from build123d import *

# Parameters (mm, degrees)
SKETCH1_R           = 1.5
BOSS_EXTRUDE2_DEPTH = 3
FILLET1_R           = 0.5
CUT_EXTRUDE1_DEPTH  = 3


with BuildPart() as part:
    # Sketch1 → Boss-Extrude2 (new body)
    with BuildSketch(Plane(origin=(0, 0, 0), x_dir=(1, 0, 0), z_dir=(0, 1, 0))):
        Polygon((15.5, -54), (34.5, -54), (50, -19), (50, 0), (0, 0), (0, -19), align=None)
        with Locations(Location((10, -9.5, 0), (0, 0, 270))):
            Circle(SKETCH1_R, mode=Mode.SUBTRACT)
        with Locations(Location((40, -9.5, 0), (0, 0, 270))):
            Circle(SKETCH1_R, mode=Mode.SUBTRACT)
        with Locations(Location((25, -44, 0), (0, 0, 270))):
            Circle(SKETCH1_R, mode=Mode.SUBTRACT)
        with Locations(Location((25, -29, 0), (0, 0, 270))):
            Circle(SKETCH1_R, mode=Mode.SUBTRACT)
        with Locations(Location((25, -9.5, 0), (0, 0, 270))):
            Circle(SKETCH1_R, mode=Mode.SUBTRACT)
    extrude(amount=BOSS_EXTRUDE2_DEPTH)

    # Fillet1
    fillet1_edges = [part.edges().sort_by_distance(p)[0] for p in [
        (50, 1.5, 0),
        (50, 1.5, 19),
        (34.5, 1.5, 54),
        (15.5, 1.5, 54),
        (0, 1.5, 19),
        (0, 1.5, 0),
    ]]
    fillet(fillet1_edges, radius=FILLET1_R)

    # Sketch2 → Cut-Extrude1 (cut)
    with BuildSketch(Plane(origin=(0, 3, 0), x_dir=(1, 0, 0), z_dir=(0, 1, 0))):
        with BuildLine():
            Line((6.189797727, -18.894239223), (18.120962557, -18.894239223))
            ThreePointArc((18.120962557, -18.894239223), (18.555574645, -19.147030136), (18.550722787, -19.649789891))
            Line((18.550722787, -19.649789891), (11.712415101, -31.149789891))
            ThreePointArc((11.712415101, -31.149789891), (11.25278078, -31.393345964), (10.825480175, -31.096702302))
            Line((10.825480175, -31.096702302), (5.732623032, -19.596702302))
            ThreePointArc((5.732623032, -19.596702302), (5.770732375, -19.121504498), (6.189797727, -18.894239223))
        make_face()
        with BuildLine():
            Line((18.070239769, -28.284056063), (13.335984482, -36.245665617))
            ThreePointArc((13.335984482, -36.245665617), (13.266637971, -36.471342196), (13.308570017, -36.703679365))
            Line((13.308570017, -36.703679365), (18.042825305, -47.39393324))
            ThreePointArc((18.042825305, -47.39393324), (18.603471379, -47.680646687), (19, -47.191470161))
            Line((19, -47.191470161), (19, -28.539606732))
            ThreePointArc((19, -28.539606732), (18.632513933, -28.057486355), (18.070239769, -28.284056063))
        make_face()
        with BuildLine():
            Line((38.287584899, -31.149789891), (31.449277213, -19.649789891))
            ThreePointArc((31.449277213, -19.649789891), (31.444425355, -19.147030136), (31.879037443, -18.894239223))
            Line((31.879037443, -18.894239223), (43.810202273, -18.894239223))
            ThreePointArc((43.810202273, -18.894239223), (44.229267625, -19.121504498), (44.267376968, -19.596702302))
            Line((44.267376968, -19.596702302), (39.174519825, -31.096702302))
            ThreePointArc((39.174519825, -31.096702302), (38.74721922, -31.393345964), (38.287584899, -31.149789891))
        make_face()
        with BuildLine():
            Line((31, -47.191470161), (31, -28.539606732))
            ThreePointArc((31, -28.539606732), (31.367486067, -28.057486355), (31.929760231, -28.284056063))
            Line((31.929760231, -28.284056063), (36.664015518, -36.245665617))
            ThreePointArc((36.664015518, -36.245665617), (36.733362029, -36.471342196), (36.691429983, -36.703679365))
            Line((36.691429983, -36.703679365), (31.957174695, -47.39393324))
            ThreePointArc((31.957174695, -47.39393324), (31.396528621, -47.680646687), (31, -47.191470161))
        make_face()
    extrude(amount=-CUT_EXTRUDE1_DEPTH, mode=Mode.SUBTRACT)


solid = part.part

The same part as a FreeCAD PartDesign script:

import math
import FreeCAD as App
import Part
import Sketcher

V = App.Vector


def edges_at(feature, points):
    """Names of the edges that pass closest to the given points."""
    edges = feature.Shape.Edges
    near = lambda p: min(range(len(edges)), key=lambda i: edges[i].distToShape(Part.Vertex(*p))[0])
    return sorted({f"Edge{near(p) + 1}" for p in points})


def add_polygon(sketch, points):
    """Adds a closed chain of lines whose ends are joined by coincident constraints."""
    first, n = sketch.GeometryCount, len(points)
    for a, b in zip(points, points[1:] + points[:1]):
        sketch.addGeometry(Part.LineSegment(App.Vector(*a, 0), App.Vector(*b, 0)), False)
    for i in range(n):
        sketch.addConstraint(Sketcher.Constraint("Coincident", first + i, 2, first + (i + 1) % n, 1))

doc = App.newDocument("Part")
body = doc.addObject("PartDesign::Body", "Body")

sketch1 = body.newObject("Sketcher::SketchObject", "Sketch")
sketch1.AttachmentSupport = (doc.getObject("XZ_Plane"), [""])
sketch1.MapMode = "FlatFace"
add_polygon(sketch1, [(15.5, 54), (34.5, 54), (50, 19), (50, 0), (0, 0), (0, 19)])
sketch1.addGeometry(Part.Circle(V(25, 44, 0), V(0, 0, 1), 1.5), False)
sketch1.addGeometry(Part.Circle(V(25, 29, 0), V(0, 0, 1), 1.5), False)
sketch1.addGeometry(Part.Circle(V(10, 9.5, 0), V(0, 0, 1), 1.5), False)
sketch1.addGeometry(Part.Circle(V(25, 9.5, 0), V(0, 0, 1), 1.5), False)
sketch1.addGeometry(Part.Circle(V(40, 9.5, 0), V(0, 0, 1), 1.5), False)
sketch1.addConstraint([
    Sketcher.Constraint("Horizontal", 0),
    Sketcher.Constraint("Vertical", 2),
    Sketcher.Constraint("Horizontal", 3),
    Sketcher.Constraint("Vertical", 4),
    Sketcher.Constraint("Coincident", 3, 2, -1, 1),
    Sketcher.Constraint("Equal", 6, 7),
    Sketcher.Constraint("Equal", 7, 8),
    Sketcher.Constraint("Equal", 8, 9),
    Sketcher.Constraint("Equal", 9, 10),
    Sketcher.Constraint("Horizontal", 8, 3, 9, 3),
    Sketcher.Constraint("Horizontal", 9, 3, 10, 3),
    Sketcher.Constraint("Horizontal", 1, 2, 4, 2),
    Sketcher.Constraint("Vertical", 6, 3, 7, 3),
    Sketcher.Constraint("Vertical", 7, 3, 9, 3),
    Sketcher.Constraint("Equal", 0, 2),
    Sketcher.Constraint("Equal", 1, 5),
    Sketcher.Constraint("Diameter", 6, 3.0),
    Sketcher.Constraint("DistanceX", 0, 1, 0, 2, 19.0),
    Sketcher.Constraint("DistanceX", 3, 2, 3, 1, 50.0),
    Sketcher.Constraint("DistanceX", -1, 1, 6, 3, 25.0),
    Sketcher.Constraint("DistanceY", -1, 1, 6, 3, 44.0),
    Sketcher.Constraint("DistanceY", -1, 1, 7, 3, 29.0),
    Sketcher.Constraint("DistanceX", -1, 1, 8, 3, 10.0),
    Sketcher.Constraint("DistanceX", -1, 1, 10, 3, 40.0),
    Sketcher.Constraint("DistanceY", -1, 1, 0, 2, 54.0),
    Sketcher.Constraint("DistanceY", -1, 1, 8, 3, 9.5),
])
pad1 = body.newObject("PartDesign::Pad", "Pad")
pad1.Profile = sketch1
pad1.Length = 3
pad1.Reversed = True
doc.recompute()

fillet = body.newObject("PartDesign::Fillet", "Fillet")
fillet.Base = (pad1, edges_at(pad1, [
    (50, 1.5, 0),
    (50, 1.5, 19),
    (34.5, 1.5, 54),
    (15.5, 1.5, 54),
    (0, 1.5, 19),
    (0, 1.5, 0),
]))
fillet.Radius = 0.5

sketch2 = body.newObject("Sketcher::SketchObject", "Sketch001")
sketch2.AttachmentSupport = (doc.getObject("XZ_Plane"), [""])
sketch2.MapMode = "FlatFace"
sketch2.AttachmentOffset = App.Placement(V(0, 0, -3), App.Rotation())
sketch2.addGeometry([
    Part.LineSegment(V(18.12, 18.89, 0), V(6.19, 18.89, 0)),
    Part.ArcOfCircle(Part.Circle(V(6.19, 19.39, 0), V(0, 0, 1), 0.5), math.radians(156), math.radians(270)),
    Part.LineSegment(V(5.73, 19.6, 0), V(10.83, 31.1, 0)),
    Part.ArcOfCircle(Part.Circle(V(11.28, 30.89, 0), V(0, 0, 1), 0.5), math.radians(31), math.radians(156)),
    Part.LineSegment(V(11.71, 31.15, 0), V(18.55, 19.65, 0)),
    Part.ArcOfCircle(Part.Circle(V(18.12, 19.39, 0), V(0, 0, 1), 0.5), math.radians(-90), math.radians(31)),
    Part.LineSegment(V(18.07, 28.28, 0), V(13.34, 36.25, 0)),
    Part.ArcOfCircle(Part.Circle(V(13.77, 36.5, 0), V(0, 0, 1), 0.5), math.radians(156), math.radians(211)),
    Part.LineSegment(V(13.31, 36.7, 0), V(18.04, 47.39, 0)),
    Part.ArcOfCircle(Part.Circle(V(18.5, 47.19, 0), V(0, 0, 1), 0.5), math.radians(0), math.radians(156)),
    Part.LineSegment(V(19, 47.19, 0), V(19, 28.54, 0)),
    Part.ArcOfCircle(Part.Circle(V(18.5, 28.54, 0), V(0, 0, 1), 0.5), math.radians(-149), math.radians(0)),
    Part.LineSegment(V(31.45, 19.65, 0), V(38.29, 31.15, 0)),
    Part.ArcOfCircle(Part.Circle(V(38.72, 30.89, 0), V(0, 0, 1), 0.5), math.radians(24), math.radians(149)),
    Part.LineSegment(V(39.17, 31.1, 0), V(44.27, 19.6, 0)),
    Part.ArcOfCircle(Part.Circle(V(43.81, 19.39, 0), V(0, 0, 1), 0.5), math.radians(-90), math.radians(24)),
    Part.LineSegment(V(43.81, 18.89, 0), V(31.88, 18.89, 0)),
    Part.ArcOfCircle(Part.Circle(V(31.88, 19.39, 0), V(0, 0, 1), 0.5), math.radians(149), math.radians(270)),
    Part.LineSegment(V(31, 28.54, 0), V(31, 47.19, 0)),
    Part.ArcOfCircle(Part.Circle(V(31.5, 47.19, 0), V(0, 0, 1), 0.5), math.radians(24), math.radians(180)),
    Part.LineSegment(V(31.96, 47.39, 0), V(36.69, 36.7, 0)),
    Part.ArcOfCircle(Part.Circle(V(36.23, 36.5, 0), V(0, 0, 1), 0.5), math.radians(-31), math.radians(24)),
    Part.LineSegment(V(36.66, 36.25, 0), V(31.93, 28.28, 0)),
    Part.ArcOfCircle(Part.Circle(V(31.5, 28.54, 0), V(0, 0, 1), 0.5), math.radians(180), math.radians(329)),
], False)
sketch2.addConstraint([
    Sketcher.Constraint("Tangent", 0, 2, 1, 2),
    Sketcher.Constraint("Tangent", 1, 1, 2, 1),
    Sketcher.Constraint("Tangent", 2, 2, 3, 2),
    Sketcher.Constraint("Tangent", 3, 1, 4, 1),
    Sketcher.Constraint("Tangent", 4, 2, 5, 2),
    Sketcher.Constraint("Tangent", 5, 1, 0, 1),
    Sketcher.Constraint("Tangent", 6, 2, 7, 2),
    Sketcher.Constraint("Tangent", 7, 1, 8, 1),
    Sketcher.Constraint("Tangent", 8, 2, 9, 2),
    Sketcher.Constraint("Tangent", 9, 1, 10, 1),
    Sketcher.Constraint("Tangent", 10, 2, 11, 2),
    Sketcher.Constraint("Tangent", 11, 1, 6, 1),
    Sketcher.Constraint("Tangent", 12, 2, 13, 2),
    Sketcher.Constraint("Tangent", 13, 1, 14, 1),
    Sketcher.Constraint("Tangent", 14, 2, 15, 2),
    Sketcher.Constraint("Tangent", 15, 1, 16, 1),
    Sketcher.Constraint("Tangent", 16, 2, 17, 2),
    Sketcher.Constraint("Tangent", 17, 1, 12, 1),
    Sketcher.Constraint("Tangent", 18, 2, 19, 2),
    Sketcher.Constraint("Tangent", 19, 1, 20, 1),
    Sketcher.Constraint("Tangent", 20, 2, 21, 2),
    Sketcher.Constraint("Tangent", 21, 1, 22, 1),
    Sketcher.Constraint("Tangent", 22, 2, 23, 2),
    Sketcher.Constraint("Tangent", 23, 1, 18, 1),
    Sketcher.Constraint("Horizontal", 0),
    Sketcher.Constraint("Vertical", 10),
    Sketcher.Constraint("Horizontal", 16),
    Sketcher.Constraint("Vertical", 18),
    Sketcher.Constraint("Equal", 1, 3),
    Sketcher.Constraint("Equal", 3, 5),
    Sketcher.Constraint("Equal", 5, 7),
    Sketcher.Constraint("Equal", 7, 9),
    Sketcher.Constraint("Equal", 9, 11),
    Sketcher.Constraint("Equal", 11, 13),
    Sketcher.Constraint("Equal", 13, 15),
    Sketcher.Constraint("Equal", 15, 17),
    Sketcher.Constraint("Equal", 17, 19),
    Sketcher.Constraint("Equal", 19, 21),
    Sketcher.Constraint("Equal", 21, 23),
    Sketcher.Constraint("Parallel", 4, 6),
    Sketcher.Constraint("Parallel", 2, 8),
    Sketcher.Constraint("Parallel", 14, 20),
    Sketcher.Constraint("Parallel", 12, 22),
    Sketcher.Constraint("Horizontal", 3, 3, 13, 3),
    Sketcher.Constraint("Horizontal", 5, 3, 15, 3),
    Sketcher.Constraint("Horizontal", 9, 3, 19, 3),
    Sketcher.Constraint("Horizontal", 7, 3, 21, 3),
    Sketcher.Constraint("Horizontal", 11, 3, 23, 3),
    Sketcher.Constraint("Horizontal", 3, 1, 12, 2),
    Sketcher.Constraint("Radius", 1, 0.5),
    Sketcher.Constraint("DistanceX", -1, 1, 9, 1, 19.0),
    Sketcher.Constraint("DistanceX", -1, 1, 18, 2, 31.0),
    Sketcher.Constraint("DistanceY", 0, 2, 3, 3, 12.0),
    Sketcher.Constraint("DistanceX", 7, 3, 13, 3, 24.9516),
    Sketcher.Constraint("DistanceX", 1, 1, 4, 2, 12.8181),
    Sketcher.Constraint("Distance", 2, 12.577249),
    Sketcher.Constraint("Distance", 6, 9.262851),
    Sketcher.Constraint("DistanceY", -1, 1, 1, 3, 19.394239),
    Sketcher.Constraint("DistanceY", -1, 1, 9, 3, 47.19147),
    Sketcher.Constraint("DistanceX", -1, 1, 2, 2, 10.82548),
])
pocket1 = body.newObject("PartDesign::Pocket", "Pocket")
pocket1.Profile = sketch2
pocket1.Length = 3
pocket1.Reversed = True

doc.recompute()
